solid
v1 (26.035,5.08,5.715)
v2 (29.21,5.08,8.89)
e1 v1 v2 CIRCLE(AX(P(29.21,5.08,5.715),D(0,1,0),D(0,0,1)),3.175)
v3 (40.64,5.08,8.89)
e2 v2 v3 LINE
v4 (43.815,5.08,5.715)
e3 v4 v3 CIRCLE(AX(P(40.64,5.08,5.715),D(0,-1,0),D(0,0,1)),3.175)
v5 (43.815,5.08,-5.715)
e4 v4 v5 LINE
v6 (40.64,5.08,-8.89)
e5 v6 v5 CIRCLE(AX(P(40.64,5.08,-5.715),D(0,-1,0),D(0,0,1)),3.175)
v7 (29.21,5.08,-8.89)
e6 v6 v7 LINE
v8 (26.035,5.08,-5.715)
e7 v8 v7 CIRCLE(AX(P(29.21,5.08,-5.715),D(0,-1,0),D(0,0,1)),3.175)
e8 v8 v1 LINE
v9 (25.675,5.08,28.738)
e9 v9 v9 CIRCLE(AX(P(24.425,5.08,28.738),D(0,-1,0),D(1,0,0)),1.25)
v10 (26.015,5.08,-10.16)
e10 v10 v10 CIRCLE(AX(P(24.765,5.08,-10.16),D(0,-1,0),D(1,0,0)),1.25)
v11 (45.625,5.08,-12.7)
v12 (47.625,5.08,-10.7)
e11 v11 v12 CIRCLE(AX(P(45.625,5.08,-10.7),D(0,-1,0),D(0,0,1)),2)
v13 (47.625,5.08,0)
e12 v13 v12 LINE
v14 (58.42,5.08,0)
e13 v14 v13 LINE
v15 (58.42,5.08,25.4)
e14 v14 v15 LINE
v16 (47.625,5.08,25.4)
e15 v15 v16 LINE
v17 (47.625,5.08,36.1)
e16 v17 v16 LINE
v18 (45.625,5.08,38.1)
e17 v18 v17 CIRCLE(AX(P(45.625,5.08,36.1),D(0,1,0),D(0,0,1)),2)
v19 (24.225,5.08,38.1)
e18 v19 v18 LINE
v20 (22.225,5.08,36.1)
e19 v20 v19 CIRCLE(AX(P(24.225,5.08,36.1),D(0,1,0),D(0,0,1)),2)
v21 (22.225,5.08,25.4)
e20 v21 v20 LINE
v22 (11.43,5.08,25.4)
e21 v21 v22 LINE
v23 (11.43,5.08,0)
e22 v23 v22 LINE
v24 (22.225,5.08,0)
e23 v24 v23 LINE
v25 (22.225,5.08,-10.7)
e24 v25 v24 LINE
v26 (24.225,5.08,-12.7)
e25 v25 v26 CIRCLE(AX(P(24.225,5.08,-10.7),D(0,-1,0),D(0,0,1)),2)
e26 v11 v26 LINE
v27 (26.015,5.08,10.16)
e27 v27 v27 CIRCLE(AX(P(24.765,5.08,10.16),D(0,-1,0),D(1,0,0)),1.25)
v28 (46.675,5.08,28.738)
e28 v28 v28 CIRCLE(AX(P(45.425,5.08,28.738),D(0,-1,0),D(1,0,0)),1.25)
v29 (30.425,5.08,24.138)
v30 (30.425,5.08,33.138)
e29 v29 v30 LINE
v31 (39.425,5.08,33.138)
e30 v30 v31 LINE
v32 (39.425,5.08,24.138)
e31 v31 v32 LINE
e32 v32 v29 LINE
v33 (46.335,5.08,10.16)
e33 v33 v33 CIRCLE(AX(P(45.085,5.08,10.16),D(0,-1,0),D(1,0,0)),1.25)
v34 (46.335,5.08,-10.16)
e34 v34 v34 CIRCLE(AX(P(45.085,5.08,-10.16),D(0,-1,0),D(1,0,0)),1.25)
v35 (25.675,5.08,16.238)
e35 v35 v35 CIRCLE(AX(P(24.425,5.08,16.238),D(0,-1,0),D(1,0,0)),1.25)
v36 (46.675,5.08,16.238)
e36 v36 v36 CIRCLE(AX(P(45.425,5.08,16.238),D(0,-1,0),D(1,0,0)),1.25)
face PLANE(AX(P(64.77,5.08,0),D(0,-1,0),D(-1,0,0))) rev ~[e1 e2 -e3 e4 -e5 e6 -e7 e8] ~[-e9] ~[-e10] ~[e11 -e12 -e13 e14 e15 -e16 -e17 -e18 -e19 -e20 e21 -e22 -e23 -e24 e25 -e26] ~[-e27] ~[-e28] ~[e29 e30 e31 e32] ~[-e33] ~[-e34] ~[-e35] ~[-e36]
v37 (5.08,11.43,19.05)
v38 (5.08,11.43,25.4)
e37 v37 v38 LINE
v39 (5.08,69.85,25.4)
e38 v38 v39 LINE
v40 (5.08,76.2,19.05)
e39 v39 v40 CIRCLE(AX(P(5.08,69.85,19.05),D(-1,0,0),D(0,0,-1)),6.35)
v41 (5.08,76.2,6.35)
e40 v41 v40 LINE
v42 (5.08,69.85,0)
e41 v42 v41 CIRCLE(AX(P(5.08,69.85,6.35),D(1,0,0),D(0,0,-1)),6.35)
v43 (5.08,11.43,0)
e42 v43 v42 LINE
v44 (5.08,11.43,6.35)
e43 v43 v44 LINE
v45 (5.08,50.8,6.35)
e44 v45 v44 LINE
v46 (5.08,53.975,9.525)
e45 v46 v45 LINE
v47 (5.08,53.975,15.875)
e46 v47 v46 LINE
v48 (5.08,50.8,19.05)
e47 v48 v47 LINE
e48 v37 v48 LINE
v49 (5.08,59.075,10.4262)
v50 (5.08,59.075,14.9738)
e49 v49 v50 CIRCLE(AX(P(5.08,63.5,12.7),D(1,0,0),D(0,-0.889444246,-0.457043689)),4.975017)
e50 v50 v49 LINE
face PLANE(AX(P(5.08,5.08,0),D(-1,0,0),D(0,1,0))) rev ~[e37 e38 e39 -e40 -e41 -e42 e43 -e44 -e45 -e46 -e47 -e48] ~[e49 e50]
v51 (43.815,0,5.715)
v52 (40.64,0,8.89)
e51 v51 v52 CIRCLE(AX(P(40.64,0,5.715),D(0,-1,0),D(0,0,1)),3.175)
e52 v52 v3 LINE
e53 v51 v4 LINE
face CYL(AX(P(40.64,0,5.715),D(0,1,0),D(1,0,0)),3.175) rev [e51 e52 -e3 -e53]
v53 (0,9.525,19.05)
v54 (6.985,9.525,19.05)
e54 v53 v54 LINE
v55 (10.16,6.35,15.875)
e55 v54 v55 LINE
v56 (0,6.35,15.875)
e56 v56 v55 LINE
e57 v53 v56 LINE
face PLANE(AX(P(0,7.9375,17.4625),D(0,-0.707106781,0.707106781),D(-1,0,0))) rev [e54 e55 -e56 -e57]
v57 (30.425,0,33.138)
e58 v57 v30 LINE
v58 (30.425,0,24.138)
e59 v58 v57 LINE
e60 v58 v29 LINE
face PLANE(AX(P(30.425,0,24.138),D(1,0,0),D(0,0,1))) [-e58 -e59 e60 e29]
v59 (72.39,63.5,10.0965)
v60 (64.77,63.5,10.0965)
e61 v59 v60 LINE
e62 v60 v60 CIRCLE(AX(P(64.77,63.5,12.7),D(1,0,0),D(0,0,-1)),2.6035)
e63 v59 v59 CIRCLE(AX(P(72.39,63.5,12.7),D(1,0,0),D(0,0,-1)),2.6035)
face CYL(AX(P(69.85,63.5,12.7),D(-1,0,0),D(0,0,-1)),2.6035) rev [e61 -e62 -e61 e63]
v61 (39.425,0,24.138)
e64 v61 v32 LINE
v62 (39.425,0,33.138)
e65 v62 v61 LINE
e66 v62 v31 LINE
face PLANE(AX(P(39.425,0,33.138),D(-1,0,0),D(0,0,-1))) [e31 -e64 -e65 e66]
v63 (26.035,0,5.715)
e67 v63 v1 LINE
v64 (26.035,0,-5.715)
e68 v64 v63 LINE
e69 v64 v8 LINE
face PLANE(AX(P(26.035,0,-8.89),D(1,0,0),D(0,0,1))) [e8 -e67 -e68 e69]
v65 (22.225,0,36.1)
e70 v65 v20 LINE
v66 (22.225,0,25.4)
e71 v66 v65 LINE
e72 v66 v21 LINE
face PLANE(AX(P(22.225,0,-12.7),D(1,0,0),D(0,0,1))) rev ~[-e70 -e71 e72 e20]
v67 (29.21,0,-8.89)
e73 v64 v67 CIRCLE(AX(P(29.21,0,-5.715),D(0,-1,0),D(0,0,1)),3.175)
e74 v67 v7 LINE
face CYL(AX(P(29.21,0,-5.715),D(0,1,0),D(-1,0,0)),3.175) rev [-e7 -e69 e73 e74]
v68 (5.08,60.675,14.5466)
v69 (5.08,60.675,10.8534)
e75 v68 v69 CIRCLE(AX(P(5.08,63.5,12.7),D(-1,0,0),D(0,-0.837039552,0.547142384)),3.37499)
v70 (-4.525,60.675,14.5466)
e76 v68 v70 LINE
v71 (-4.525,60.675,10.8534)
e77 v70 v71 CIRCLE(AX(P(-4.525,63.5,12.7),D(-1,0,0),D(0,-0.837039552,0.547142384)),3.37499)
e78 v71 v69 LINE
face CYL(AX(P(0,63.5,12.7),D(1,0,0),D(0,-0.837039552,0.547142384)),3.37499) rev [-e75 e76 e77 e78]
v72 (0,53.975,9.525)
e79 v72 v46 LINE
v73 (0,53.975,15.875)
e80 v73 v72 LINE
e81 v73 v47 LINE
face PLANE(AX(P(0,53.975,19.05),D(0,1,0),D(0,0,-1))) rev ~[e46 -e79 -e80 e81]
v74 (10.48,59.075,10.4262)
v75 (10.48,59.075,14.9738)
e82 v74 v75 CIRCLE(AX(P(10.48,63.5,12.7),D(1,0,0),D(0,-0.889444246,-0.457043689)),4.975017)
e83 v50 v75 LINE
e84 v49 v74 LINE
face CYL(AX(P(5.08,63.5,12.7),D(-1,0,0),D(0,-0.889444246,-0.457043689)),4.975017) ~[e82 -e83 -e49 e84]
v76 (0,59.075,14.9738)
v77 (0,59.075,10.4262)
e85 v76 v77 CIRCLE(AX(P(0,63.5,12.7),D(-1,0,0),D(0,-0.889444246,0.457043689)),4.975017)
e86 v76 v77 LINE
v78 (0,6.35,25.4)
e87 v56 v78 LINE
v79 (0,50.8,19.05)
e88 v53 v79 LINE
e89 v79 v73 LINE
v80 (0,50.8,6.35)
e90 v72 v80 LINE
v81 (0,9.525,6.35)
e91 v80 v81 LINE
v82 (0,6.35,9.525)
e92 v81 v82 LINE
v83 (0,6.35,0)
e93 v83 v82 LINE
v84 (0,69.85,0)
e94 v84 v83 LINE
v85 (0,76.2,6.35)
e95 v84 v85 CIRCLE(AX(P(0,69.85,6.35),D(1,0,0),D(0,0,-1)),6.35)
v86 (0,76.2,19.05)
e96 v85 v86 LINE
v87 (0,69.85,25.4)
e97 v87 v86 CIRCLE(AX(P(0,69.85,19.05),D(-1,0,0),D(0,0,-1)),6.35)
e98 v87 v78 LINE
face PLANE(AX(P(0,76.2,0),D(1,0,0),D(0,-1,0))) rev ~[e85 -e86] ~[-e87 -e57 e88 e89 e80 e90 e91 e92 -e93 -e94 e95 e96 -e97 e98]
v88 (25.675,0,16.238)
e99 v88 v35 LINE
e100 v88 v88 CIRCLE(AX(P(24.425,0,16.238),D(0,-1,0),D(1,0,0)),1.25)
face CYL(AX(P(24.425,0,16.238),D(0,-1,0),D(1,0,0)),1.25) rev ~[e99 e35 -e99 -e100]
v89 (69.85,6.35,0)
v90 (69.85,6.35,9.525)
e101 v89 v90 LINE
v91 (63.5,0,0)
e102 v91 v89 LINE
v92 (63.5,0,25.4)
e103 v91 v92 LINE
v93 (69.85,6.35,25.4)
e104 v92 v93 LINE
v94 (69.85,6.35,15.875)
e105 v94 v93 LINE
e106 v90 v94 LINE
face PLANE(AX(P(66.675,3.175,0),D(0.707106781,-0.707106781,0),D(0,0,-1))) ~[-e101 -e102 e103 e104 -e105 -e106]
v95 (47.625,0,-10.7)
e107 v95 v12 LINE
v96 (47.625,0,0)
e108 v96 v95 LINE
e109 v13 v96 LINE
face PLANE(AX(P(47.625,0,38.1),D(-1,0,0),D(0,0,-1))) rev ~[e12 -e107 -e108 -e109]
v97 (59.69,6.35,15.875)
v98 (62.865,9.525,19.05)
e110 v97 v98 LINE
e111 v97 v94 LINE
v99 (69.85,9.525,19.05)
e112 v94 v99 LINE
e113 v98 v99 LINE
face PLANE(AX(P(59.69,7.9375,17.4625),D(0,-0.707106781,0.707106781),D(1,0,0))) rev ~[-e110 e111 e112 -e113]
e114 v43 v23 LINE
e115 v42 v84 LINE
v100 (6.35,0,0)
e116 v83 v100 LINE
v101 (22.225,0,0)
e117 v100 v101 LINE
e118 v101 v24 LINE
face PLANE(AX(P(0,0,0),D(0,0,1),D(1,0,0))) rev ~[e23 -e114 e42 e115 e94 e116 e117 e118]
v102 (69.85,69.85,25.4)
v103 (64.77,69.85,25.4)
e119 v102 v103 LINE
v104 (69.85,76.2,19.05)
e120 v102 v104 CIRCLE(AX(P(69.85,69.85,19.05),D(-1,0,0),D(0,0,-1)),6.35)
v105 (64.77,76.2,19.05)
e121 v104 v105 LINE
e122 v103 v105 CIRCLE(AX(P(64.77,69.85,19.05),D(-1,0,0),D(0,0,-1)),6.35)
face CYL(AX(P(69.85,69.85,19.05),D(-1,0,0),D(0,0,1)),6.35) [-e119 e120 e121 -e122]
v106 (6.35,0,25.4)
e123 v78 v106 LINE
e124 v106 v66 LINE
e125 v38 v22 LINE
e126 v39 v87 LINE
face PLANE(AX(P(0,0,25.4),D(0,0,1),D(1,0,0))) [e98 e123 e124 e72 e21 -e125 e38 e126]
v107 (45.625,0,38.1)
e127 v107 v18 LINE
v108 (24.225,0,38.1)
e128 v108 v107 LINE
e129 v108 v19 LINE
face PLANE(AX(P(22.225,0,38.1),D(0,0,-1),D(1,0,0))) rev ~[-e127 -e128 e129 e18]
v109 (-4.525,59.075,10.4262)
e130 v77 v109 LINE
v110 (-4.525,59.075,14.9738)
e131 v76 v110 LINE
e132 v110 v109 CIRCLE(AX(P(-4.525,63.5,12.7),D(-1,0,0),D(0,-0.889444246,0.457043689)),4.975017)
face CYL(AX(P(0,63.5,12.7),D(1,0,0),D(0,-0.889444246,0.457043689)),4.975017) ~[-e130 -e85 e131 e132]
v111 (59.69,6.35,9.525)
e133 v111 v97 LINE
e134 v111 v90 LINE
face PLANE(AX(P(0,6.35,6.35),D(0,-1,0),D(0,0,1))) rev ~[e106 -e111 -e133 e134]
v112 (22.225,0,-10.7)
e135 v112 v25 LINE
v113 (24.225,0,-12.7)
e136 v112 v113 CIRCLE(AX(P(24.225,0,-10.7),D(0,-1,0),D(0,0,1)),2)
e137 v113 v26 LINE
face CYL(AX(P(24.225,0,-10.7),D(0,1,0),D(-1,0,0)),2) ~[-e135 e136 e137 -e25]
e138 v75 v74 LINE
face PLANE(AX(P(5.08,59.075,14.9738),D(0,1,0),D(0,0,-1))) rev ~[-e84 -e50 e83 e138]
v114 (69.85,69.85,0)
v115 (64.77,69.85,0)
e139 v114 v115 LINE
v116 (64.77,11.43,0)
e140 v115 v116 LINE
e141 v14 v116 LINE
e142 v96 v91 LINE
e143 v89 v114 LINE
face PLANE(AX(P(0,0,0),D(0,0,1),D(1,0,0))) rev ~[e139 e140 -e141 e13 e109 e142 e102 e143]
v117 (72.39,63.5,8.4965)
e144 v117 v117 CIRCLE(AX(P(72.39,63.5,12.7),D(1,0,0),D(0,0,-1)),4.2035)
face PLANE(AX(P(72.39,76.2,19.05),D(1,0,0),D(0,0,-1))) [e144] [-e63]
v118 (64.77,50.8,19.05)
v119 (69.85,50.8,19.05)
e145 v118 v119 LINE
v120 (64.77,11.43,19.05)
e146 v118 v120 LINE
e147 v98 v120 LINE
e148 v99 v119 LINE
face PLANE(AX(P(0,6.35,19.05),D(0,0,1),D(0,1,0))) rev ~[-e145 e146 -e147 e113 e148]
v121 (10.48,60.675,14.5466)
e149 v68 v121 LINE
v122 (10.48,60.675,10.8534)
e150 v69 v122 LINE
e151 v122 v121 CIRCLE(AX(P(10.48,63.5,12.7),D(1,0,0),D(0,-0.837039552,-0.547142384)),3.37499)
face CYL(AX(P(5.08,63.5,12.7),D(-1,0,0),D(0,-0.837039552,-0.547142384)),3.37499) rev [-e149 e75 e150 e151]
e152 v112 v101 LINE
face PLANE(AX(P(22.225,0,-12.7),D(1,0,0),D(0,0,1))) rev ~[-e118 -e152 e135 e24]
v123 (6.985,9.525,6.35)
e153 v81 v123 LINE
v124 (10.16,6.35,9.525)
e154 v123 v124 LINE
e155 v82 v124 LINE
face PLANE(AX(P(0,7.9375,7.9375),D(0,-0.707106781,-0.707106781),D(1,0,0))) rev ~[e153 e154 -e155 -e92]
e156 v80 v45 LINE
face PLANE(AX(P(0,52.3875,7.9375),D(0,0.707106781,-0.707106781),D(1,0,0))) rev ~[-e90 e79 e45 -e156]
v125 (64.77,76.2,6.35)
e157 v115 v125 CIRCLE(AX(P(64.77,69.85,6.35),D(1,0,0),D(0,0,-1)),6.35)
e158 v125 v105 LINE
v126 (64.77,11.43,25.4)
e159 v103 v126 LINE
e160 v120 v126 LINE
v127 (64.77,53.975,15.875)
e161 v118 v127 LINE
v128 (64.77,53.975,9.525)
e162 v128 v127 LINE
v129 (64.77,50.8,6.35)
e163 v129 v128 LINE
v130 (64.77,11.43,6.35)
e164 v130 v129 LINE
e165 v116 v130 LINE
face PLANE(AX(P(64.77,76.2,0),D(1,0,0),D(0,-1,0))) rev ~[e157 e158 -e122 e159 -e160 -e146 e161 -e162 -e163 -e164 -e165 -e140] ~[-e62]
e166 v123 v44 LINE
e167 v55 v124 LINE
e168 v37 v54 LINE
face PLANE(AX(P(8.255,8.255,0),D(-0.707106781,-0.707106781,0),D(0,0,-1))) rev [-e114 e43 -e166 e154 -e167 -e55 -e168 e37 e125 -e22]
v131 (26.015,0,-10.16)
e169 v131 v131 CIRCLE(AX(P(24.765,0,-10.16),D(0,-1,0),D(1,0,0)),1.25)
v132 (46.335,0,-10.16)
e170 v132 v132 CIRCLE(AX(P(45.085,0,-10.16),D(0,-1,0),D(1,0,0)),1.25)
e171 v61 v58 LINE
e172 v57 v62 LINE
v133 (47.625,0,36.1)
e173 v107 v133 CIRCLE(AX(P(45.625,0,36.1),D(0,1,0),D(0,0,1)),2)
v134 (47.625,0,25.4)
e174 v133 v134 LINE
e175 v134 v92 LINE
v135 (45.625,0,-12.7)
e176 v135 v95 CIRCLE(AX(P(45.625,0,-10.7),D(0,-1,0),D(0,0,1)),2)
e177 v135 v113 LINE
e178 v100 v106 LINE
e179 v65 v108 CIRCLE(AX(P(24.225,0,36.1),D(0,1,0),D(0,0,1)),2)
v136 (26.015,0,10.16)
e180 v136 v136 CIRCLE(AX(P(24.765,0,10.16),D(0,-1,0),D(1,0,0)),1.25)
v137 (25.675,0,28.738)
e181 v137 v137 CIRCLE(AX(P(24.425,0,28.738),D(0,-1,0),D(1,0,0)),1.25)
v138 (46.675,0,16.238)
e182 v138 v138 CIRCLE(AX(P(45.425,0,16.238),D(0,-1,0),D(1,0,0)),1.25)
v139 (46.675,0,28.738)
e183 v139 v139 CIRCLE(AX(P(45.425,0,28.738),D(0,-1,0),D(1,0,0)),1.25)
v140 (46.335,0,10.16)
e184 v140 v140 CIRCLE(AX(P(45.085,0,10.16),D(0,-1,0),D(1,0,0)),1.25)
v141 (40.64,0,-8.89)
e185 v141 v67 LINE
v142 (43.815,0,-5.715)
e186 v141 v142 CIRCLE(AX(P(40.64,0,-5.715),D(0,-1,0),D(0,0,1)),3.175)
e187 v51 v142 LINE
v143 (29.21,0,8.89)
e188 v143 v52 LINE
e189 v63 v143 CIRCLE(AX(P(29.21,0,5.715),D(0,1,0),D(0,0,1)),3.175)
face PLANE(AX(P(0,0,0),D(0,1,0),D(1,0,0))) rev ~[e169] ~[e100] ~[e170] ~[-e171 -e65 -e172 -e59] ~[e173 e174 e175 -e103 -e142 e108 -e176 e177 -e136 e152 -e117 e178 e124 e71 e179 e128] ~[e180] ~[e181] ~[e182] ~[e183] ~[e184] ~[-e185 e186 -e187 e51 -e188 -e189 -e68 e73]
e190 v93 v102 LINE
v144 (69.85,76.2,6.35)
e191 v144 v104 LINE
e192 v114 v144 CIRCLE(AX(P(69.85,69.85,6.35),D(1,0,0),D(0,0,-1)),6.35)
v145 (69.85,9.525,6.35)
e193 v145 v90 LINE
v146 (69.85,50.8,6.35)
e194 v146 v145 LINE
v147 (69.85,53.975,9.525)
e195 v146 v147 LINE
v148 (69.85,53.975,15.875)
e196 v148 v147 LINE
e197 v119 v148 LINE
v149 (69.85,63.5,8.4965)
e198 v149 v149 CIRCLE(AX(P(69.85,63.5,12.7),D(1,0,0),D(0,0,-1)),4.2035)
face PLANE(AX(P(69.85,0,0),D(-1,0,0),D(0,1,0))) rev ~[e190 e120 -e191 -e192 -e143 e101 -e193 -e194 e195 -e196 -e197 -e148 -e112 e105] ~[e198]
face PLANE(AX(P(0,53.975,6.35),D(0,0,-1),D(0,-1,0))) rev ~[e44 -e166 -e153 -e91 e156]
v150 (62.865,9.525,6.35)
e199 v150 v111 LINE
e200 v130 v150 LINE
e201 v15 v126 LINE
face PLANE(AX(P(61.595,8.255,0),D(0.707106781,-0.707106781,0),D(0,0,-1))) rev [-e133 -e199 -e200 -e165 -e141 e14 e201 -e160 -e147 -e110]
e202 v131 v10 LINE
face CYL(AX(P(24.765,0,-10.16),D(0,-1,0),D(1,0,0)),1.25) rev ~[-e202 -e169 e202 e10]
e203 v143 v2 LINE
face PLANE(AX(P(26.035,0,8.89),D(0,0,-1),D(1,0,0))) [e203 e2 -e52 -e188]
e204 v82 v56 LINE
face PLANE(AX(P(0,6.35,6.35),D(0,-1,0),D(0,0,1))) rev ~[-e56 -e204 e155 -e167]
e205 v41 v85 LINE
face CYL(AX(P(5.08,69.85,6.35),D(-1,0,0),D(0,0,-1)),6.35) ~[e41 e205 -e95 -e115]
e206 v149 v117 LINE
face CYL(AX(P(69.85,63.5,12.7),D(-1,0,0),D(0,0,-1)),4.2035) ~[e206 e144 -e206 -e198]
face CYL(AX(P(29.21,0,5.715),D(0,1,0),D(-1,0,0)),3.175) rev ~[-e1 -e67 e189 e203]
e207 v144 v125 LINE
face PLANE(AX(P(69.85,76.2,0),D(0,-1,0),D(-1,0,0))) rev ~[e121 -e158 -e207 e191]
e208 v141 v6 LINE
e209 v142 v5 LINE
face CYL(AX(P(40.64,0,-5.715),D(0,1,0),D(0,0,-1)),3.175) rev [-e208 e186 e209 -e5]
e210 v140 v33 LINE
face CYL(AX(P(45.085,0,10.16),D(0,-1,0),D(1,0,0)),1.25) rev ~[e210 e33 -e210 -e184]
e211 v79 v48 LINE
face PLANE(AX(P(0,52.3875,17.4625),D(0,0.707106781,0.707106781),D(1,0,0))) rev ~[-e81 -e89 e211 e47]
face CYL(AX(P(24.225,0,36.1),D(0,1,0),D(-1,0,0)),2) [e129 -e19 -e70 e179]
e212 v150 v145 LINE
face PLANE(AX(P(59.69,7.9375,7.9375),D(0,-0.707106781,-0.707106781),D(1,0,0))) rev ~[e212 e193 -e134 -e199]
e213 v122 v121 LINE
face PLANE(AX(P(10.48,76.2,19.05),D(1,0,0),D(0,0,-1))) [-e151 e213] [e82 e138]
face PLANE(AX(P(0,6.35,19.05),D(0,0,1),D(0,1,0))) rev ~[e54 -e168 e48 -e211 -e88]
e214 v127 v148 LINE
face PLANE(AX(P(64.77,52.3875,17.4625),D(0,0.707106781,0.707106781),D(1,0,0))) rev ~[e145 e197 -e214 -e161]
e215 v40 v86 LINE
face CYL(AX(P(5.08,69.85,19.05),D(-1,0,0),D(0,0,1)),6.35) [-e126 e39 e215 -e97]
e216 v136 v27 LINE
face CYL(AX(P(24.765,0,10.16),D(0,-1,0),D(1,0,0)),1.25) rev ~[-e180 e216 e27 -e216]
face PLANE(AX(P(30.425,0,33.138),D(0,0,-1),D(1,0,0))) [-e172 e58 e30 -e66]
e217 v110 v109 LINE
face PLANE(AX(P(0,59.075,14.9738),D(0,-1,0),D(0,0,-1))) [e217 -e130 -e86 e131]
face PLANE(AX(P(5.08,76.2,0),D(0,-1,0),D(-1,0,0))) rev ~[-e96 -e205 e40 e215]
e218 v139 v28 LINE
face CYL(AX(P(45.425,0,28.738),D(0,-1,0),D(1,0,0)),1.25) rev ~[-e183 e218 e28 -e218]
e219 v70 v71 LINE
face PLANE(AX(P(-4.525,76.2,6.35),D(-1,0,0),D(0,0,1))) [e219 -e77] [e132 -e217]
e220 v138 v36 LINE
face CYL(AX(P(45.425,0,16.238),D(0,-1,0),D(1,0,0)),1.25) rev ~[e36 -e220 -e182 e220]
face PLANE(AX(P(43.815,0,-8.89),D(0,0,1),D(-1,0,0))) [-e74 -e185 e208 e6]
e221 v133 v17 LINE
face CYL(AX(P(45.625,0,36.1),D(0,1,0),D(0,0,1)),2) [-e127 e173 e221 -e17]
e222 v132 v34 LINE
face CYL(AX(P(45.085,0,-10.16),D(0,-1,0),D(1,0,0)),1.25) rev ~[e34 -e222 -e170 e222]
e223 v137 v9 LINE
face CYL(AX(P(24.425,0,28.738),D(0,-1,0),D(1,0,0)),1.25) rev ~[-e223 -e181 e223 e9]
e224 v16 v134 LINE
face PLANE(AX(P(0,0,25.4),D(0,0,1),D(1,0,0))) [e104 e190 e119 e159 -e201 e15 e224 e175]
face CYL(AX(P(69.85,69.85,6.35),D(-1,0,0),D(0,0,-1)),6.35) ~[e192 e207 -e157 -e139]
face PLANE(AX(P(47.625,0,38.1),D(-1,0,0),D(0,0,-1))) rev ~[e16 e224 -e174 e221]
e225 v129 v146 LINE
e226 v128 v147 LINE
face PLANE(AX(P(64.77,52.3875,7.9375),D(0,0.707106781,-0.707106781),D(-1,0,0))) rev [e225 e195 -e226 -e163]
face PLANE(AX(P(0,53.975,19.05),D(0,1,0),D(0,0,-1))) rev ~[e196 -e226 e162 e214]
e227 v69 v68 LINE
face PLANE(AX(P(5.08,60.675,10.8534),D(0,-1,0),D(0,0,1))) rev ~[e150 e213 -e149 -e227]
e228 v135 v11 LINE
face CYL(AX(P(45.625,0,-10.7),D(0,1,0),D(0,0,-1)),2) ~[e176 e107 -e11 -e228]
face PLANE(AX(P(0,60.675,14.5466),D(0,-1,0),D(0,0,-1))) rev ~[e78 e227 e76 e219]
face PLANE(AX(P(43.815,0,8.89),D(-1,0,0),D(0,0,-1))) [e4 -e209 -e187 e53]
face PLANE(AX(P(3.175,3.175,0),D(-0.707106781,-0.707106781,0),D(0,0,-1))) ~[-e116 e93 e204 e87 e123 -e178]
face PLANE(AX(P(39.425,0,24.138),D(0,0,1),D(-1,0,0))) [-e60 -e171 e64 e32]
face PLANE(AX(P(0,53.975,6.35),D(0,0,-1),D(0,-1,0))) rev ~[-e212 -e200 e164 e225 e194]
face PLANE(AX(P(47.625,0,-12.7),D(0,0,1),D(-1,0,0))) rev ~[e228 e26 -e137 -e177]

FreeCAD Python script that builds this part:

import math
import FreeCAD as App
import Part
import Sketcher
Q = App.Units.Quantity


def edges_at(feature, points):
    """Names of the edges that pass closest to the given points."""
    edges = feature.Shape.Edges
    near = lambda p: min(range(len(edges)), key=lambda i: edges[i].distToShape(Part.Vertex(*p))[0])
    return sorted({f"Edge{near(p) + 1}" for p in points})

doc = App.newDocument("Part")
body = doc.addObject("PartDesign::Body", "Body")

sketch1 = body.newObject("Sketcher::SketchObject", "Sketch")
sketch1.AttachmentSupport = (doc.getObject("XY_Plane"), [""])
sketch1.MapMode = "FlatFace"
sketch1.addGeometry(Part.LineSegment(App.Vector(0, 76, 0), App.Vector(0, 0, 0)), False)
sketch1.addGeometry(Part.LineSegment(App.Vector(0, 0, 0), App.Vector(70, 0, 0)), False)
sketch1.addGeometry(Part.LineSegment(App.Vector(70, 0, 0), App.Vector(70, 76, 0)), False)
sketch1.addGeometry(Part.LineSegment(App.Vector(70, 76, 0), App.Vector(65, 76, 0)), False)
sketch1.addGeometry(Part.LineSegment(App.Vector(65, 76, 0), App.Vector(65, 5, 0)), False)
sketch1.addGeometry(Part.LineSegment(App.Vector(65, 5, 0), App.Vector(5, 5, 0)), False)
sketch1.addGeometry(Part.LineSegment(App.Vector(5, 5, 0), App.Vector(5, 76, 0)), False)
sketch1.addGeometry(Part.LineSegment(App.Vector(5, 76, 0), App.Vector(0, 76, 0)), False)
sketch1.addConstraint(Sketcher.Constraint("Coincident", 0, 2, 1, 1))
sketch1.addConstraint(Sketcher.Constraint("Coincident", 1, 2, 2, 1))
sketch1.addConstraint(Sketcher.Constraint("Coincident", 2, 2, 3, 1))
sketch1.addConstraint(Sketcher.Constraint("Coincident", 3, 2, 4, 1))
sketch1.addConstraint(Sketcher.Constraint("Coincident", 4, 2, 5, 1))
sketch1.addConstraint(Sketcher.Constraint("Coincident", 5, 2, 6, 1))
sketch1.addConstraint(Sketcher.Constraint("Coincident", 6, 2, 7, 1))
sketch1.addConstraint(Sketcher.Constraint("Coincident", 7, 2, 0, 1))
sketch1.addConstraint(Sketcher.Constraint("Vertical", 0))
sketch1.addConstraint(Sketcher.Constraint("Horizontal", 1))
sketch1.addConstraint(Sketcher.Constraint("Vertical", 2))
sketch1.addConstraint(Sketcher.Constraint("Horizontal", 3))
sketch1.addConstraint(Sketcher.Constraint("Vertical", 4))
sketch1.addConstraint(Sketcher.Constraint("Horizontal", 5))
sketch1.addConstraint(Sketcher.Constraint("Vertical", 6))
sketch1.addConstraint(Sketcher.Constraint("Horizontal", 7))
sketch1.addConstraint(Sketcher.Constraint("Coincident", 0, 2, -1, 1))
sketch1.addConstraint(Sketcher.Constraint("Horizontal", 3, 2, 6, 2))
sketch1.addConstraint(Sketcher.Constraint("Equal", 3, 7))
sketch1.addConstraint(Sketcher.Constraint("DistanceY", 0, 2, 0, 1, Q("3 in")))
sketch1.addConstraint(Sketcher.Constraint("DistanceX", 3, 2, 3, 1, Q("0.2 in")))
sketch1.addConstraint(Sketcher.Constraint("DistanceX", 1, 1, 1, 2, Q("2.75 in")))
sketch1.addConstraint(Sketcher.Constraint("DistanceY", -1, 1, 4, 2, Q("0.2 in")))
pad1 = body.newObject("PartDesign::Pad", "Pad")
pad1.Profile = sketch1
pad1.Length = Q("1 in")

sketch2 = body.newObject("Sketcher::SketchObject", "Sketch001")
sketch2.AttachmentSupport = (doc.getObject("XZ_Plane"), [""])
sketch2.MapMode = "FlatFace"
sketch2.addGeometry(Part.LineSegment(App.Vector(48, 38, 0), App.Vector(22, 38, 0)), False)
sketch2.addGeometry(Part.LineSegment(App.Vector(22, 38, 0), App.Vector(22, -13, 0)), False)
sketch2.addGeometry(Part.LineSegment(App.Vector(22, -13, 0), App.Vector(48, -13, 0)), False)
sketch2.addGeometry(Part.LineSegment(App.Vector(48, -13, 0), App.Vector(48, 38, 0)), False)
sketch2.addConstraint(Sketcher.Constraint("Coincident", 0, 2, 1, 1))
sketch2.addConstraint(Sketcher.Constraint("Coincident", 1, 2, 2, 1))
sketch2.addConstraint(Sketcher.Constraint("Coincident", 2, 2, 3, 1))
sketch2.addConstraint(Sketcher.Constraint("Coincident", 3, 2, 0, 1))
sketch2.addConstraint(Sketcher.Constraint("Horizontal", 0))
sketch2.addConstraint(Sketcher.Constraint("Vertical", 1))
sketch2.addConstraint(Sketcher.Constraint("Horizontal", 2))
sketch2.addConstraint(Sketcher.Constraint("Vertical", 3))
sketch2.addConstraint(Sketcher.Constraint("DistanceX", 0, 2, 0, 1, Q("1 in")))
sketch2.addConstraint(Sketcher.Constraint("DistanceY", 1, 2, 1, 1, Q("2 in")))
sketch2.addConstraint(Sketcher.Constraint("DistanceY", -1, 1, 0, 2, Q("1.5 in")))
sketch2.addConstraint(Sketcher.Constraint("DistanceX", -1, 1, 0, 2, Q("0.875 in")))
pad2 = body.newObject("PartDesign::Pad", "Pad001")
pad2.Profile = sketch2
pad2.Length = Q("0.2 in")
pad2.Reversed = True

sketch3 = body.newObject("Sketcher::SketchObject", "Sketch002")
sketch3.AttachmentSupport = (doc.getObject("XZ_Plane"), [""])
sketch3.MapMode = "FlatFace"
sketch3.addGeometry(Part.Circle(App.Vector(24.4, 16.2, 0), App.Vector(0, 0, 1), 1.2), False)
sketch3.addGeometry(Part.Circle(App.Vector(45.4, 16.2, 0), App.Vector(0, 0, 1), 1.2), False)
sketch3.addGeometry(Part.Circle(App.Vector(24.4, 28.7, 0), App.Vector(0, 0, 1), 1.2), False)
sketch3.addGeometry(Part.Circle(App.Vector(45.4, 28.7, 0), App.Vector(0, 0, 1), 1.2), False)
sketch3.addGeometry(Part.LineSegment(App.Vector(39.4, 33.1, 0), App.Vector(30.4, 33.1, 0)), False)
sketch3.addGeometry(Part.LineSegment(App.Vector(30.4, 33.1, 0), App.Vector(30.4, 24.1, 0)), False)
sketch3.addGeometry(Part.LineSegment(App.Vector(30.4, 24.1, 0), App.Vector(39.4, 24.1, 0)), False)
sketch3.addGeometry(Part.LineSegment(App.Vector(39.4, 24.1, 0), App.Vector(39.4, 33.1, 0)), False)
sketch3.addConstraint(Sketcher.Constraint("Coincident", 4, 2, 5, 1))
sketch3.addConstraint(Sketcher.Constraint("Coincident", 5, 2, 6, 1))
sketch3.addConstraint(Sketcher.Constraint("Coincident", 6, 2, 7, 1))
sketch3.addConstraint(Sketcher.Constraint("Coincident", 7, 2, 4, 1))
sketch3.addConstraint(Sketcher.Constraint("Horizontal", 4))
sketch3.addConstraint(Sketcher.Constraint("Vertical", 5))
sketch3.addConstraint(Sketcher.Constraint("Horizontal", 6))
sketch3.addConstraint(Sketcher.Constraint("Vertical", 7))
sketch3.addConstraint(Sketcher.Constraint("Equal", 0, 1))
sketch3.addConstraint(Sketcher.Constraint("Equal", 1, 2))
sketch3.addConstraint(Sketcher.Constraint("Equal", 2, 3))
sketch3.addConstraint(Sketcher.Constraint("Horizontal", 0, 3, 1, 3))
sketch3.addConstraint(Sketcher.Constraint("Horizontal", 2, 3, 3, 3))
sketch3.addConstraint(Sketcher.Constraint("Vertical", 0, 3, 2, 3))
sketch3.addConstraint(Sketcher.Constraint("Vertical", 1, 3, 3, 3))
sketch3.addConstraint(Sketcher.Constraint("Equal", 6, 5))
sketch3.addConstraint(Sketcher.Constraint("Diameter", 0, Q("2.5 mm")))
sketch3.addConstraint(Sketcher.Constraint("DistanceX", 4, 2, 4, 1, Q("9 mm")))
sketch3.addConstraint(Sketcher.Constraint("DistanceY", 0, 3, 2, 3, Q("12.5 mm")))
sketch3.addConstraint(Sketcher.Constraint("DistanceY", -1, 1, 0, 3, Q("0.6393 in")))
sketch3.addConstraint(Sketcher.Constraint("DistanceY", 5, 2, 2, 3, Q("0.1811 in")))
sketch3.addConstraint(Sketcher.Constraint("DistanceX", -1, 1, 0, 3, Q("24.425 mm")))
sketch3.addConstraint(Sketcher.Constraint("DistanceX", -1, 1, 1, 3, Q("45.425 mm")))
sketch3.addConstraint(Sketcher.Constraint("DistanceX", -1, 1, 4, 2, Q("30.425 mm")))
pocket1 = body.newObject("PartDesign::Pocket", "Pocket")
pocket1.Profile = sketch3
pocket1.Length = Q("0.2 in")

sketch4 = body.newObject("Sketcher::SketchObject", "Sketch003")
sketch4.AttachmentSupport = (doc.getObject("XZ_Plane"), [""])
sketch4.MapMode = "FlatFace"
sketch4.addGeometry(Part.LineSegment(App.Vector(43.8, 8.9, 0), App.Vector(26, 8.9, 0)), False)
sketch4.addGeometry(Part.LineSegment(App.Vector(26, 8.9, 0), App.Vector(26, -8.9, 0)), False)
sketch4.addGeometry(Part.LineSegment(App.Vector(26, -8.9, 0), App.Vector(43.8, -8.9, 0)), False)
sketch4.addGeometry(Part.LineSegment(App.Vector(43.8, -8.9, 0), App.Vector(43.8, 8.9, 0)), False)
sketch4.addGeometry(Part.Circle(App.Vector(24.8, 10.2, 0), App.Vector(0, 0, 1), 1.2), False)
sketch4.addGeometry(Part.Circle(App.Vector(45.1, 10.2, 0), App.Vector(0, 0, 1), 1.2), False)
sketch4.addGeometry(Part.Circle(App.Vector(45.1, -10.2, 0), App.Vector(0, 0, 1), 1.2), False)
sketch4.addGeometry(Part.Circle(App.Vector(24.8, -10.2, 0), App.Vector(0, 0, 1), 1.2), False)
sketch4.addConstraint(Sketcher.Constraint("Coincident", 0, 2, 1, 1))
sketch4.addConstraint(Sketcher.Constraint("Coincident", 1, 2, 2, 1))
sketch4.addConstraint(Sketcher.Constraint("Coincident", 2, 2, 3, 1))
sketch4.addConstraint(Sketcher.Constraint("Coincident", 3, 2, 0, 1))
sketch4.addConstraint(Sketcher.Constraint("Horizontal", 0))
sketch4.addConstraint(Sketcher.Constraint("Vertical", 1))
sketch4.addConstraint(Sketcher.Constraint("Horizontal", 2))
sketch4.addConstraint(Sketcher.Constraint("Vertical", 3))
sketch4.addConstraint(Sketcher.Constraint("Equal", 4, 5))
sketch4.addConstraint(Sketcher.Constraint("Equal", 5, 6))
sketch4.addConstraint(Sketcher.Constraint("Equal", 6, 7))
sketch4.addConstraint(Sketcher.Constraint("Symmetric", 5, 3, 6, 3, -1))
sketch4.addConstraint(Sketcher.Constraint("Symmetric", 4, 3, 7, 3, -1))
sketch4.addConstraint(Sketcher.Constraint("Horizontal", 4, 3, 5, 3))
sketch4.addConstraint(Sketcher.Constraint("Equal", 2, 1))
sketch4.addConstraint(Sketcher.Constraint("DistanceX", 0, 2, 0, 1, Q("0.7 in")))
sketch4.addConstraint(Sketcher.Constraint("DistanceX", 4, 3, 5, 3, Q("0.8 in")))
sketch4.addConstraint(Sketcher.Constraint("DistanceY", 6, 3, 5, 3, Q("0.8 in")))
sketch4.addConstraint(Sketcher.Constraint("Diameter", 4, Q("2.5 mm")))
sketch4.addConstraint(Sketcher.Constraint("DistanceY", -1, 1, 0, 2, Q("0.35 in")))
sketch4.addConstraint(Sketcher.Constraint("DistanceX", 4, 3, 0, 2, Q("0.05 in")))
sketch4.addConstraint(Sketcher.Constraint("DistanceX", -1, 1, 4, 3, Q("0.975 in")))
pocket2 = body.newObject("PartDesign::Pocket", "Pocket001")
pocket2.Profile = sketch4
pocket2.Length = Q("0.2 in")

sketch5 = body.newObject("Sketcher::SketchObject", "Sketch004")
sketch5.AttachmentSupport = (doc.getObject("YZ_Plane"), [""])
sketch5.MapMode = "FlatFace"
sketch5.addGeometry(Part.ArcOfCircle(Part.Circle(App.Vector(63.5, 12.7, 0), App.Vector(0, 0, 1), 3.4), math.radians(-147), math.radians(147)), False)
sketch5.addGeometry(Part.LineSegment(App.Vector(60.7, 10.9, 0), App.Vector(60.7, 14.5, 0)), False)
sketch5.addConstraint(Sketcher.Constraint("Coincident", 0, 1, 1, 1))
sketch5.addConstraint(Sketcher.Constraint("Coincident", 1, 2, 0, 2))
sketch5.addConstraint(Sketcher.Constraint("Vertical", 1))
sketch5.addConstraint(Sketcher.Constraint("DistanceX", -1, 1, 0, 3, Q("2.5 in")))
sketch5.addConstraint(Sketcher.Constraint("DistanceY", -1, 1, 0, 3, Q("0.5 in")))
sketch5.addConstraint(Sketcher.Constraint("Radius", 0, Q("3.375 mm")))
sketch5.addConstraint(Sketcher.Constraint("DistanceY", 1, 1, 1, 2, Q("0.1454 in")))
pocket3 = body.newObject("PartDesign::Pocket", "Pocket002")
pocket3.Profile = sketch5
pocket3.Length = Q("0.2 in")
pocket3.Reversed = True

sketch6 = body.newObject("Sketcher::SketchObject", "Sketch005")
sketch6.AttachmentSupport = (doc.getObject("YZ_Plane"), [""])
sketch6.MapMode = "FlatFace"
sketch6.AttachmentOffset = App.Placement(App.Vector(0, 0, 2.75 * 25.4), App.Rotation())
sketch6.addGeometry(Part.Circle(App.Vector(63.5, 12.7, 0), App.Vector(0, 0, 1), 2.6), False)
sketch6.addConstraint(Sketcher.Constraint("Diameter", 0, Q("0.205 in")))
sketch6.addConstraint(Sketcher.Constraint("DistanceX", -1, 1, 0, 3, Q("2.5 in")))
sketch6.addConstraint(Sketcher.Constraint("DistanceY", -1, 1, 0, 3, Q("0.5 in")))
pocket4 = body.newObject("PartDesign::Pocket", "Pocket003")
pocket4.Profile = sketch6
pocket4.Length = Q("0.2 in")
doc.recompute()

fillet = body.newObject("PartDesign::Fillet", "Fillet")
fillet.Base = (pocket4, edges_at(pocket4, [
    (47.625, 2.54, 38.1),
    (22.225, 2.54, 38.1),
    (22.225, 2.54, -12.7),
    (47.625, 2.54, -12.7),
]))
fillet.Radius = 2
doc.recompute()

fillet2 = body.newObject("PartDesign::Fillet", "Fillet001")
fillet2.Base = (fillet, edges_at(fillet, [
    (67.31, 76.2, 25.4),
    (67.31, 76.2, 0),
    (2.54, 76.2, 25.4),
    (2.54, 76.2, 0),
]))
fillet2.Radius = Q("0.25 in")
doc.recompute()

chamfer = body.newObject("PartDesign::Chamfer", "Chamfer")
chamfer.Base = (fillet2, edges_at(fillet2, [
    (0, 0, 12.7),
    (5.08, 5.08, 12.7),
    (69.85, 0, 12.7),
    (64.77, 5.08, 12.7),
]))
chamfer.Size = Q("0.25 in")

sketch7 = body.newObject("Sketcher::SketchObject", "Sketch006")
sketch7.AttachmentSupport = (doc.getObject("YZ_Plane"), [""])
sketch7.MapMode = "FlatFace"
sketch7.addGeometry(Part.LineSegment(App.Vector(6, 19, 0), App.Vector(54, 19, 0)), False)
sketch7.addGeometry(Part.LineSegment(App.Vector(54, 19, 0), App.Vector(54, 6, 0)), False)
sketch7.addGeometry(Part.LineSegment(App.Vector(54, 6, 0), App.Vector(6, 6, 0)), False)
sketch7.addGeometry(Part.LineSegment(App.Vector(6, 6, 0), App.Vector(6, 19, 0)), False)
sketch7.addConstraint(Sketcher.Constraint("Coincident", 0, 2, 1, 1))
sketch7.addConstraint(Sketcher.Constraint("Coincident", 1, 2, 2, 1))
sketch7.addConstraint(Sketcher.Constraint("Coincident", 2, 2, 3, 1))
sketch7.addConstraint(Sketcher.Constraint("Coincident", 3, 2, 0, 1))
sketch7.addConstraint(Sketcher.Constraint("Horizontal", 0))
sketch7.addConstraint(Sketcher.Constraint("Vertical", 1))
sketch7.addConstraint(Sketcher.Constraint("Horizontal", 2))
sketch7.addConstraint(Sketcher.Constraint("Vertical", 3))
sketch7.addConstraint(Sketcher.Constraint("DistanceY", -1, 1, 1, 2, Q("0.25 in")))
sketch7.addConstraint(Sketcher.Constraint("DistanceX", -1, 1, 2, 2, Q("0.25 in")))
sketch7.addConstraint(Sketcher.Constraint("DistanceY", 1, 2, 1, 1, Q("0.5 in")))
sketch7.addConstraint(Sketcher.Constraint("DistanceX", 0, 1, 0, 2, Q("1.875 in")))
pocket5 = body.newObject("PartDesign::Pocket", "Pocket004")
pocket5.Profile = sketch7
pocket5.Type = "ThroughAll"
pocket5.Reversed = True
doc.recompute()

chamfer2 = body.newObject("PartDesign::Chamfer", "Chamfer001")
chamfer2.Base = (pocket5, edges_at(pocket5, [
    (64.77, 6.35, 19.05),
    (64.77, 6.35, 6.35),
    (67.31, 53.975, 6.35),
    (67.31, 53.975, 19.05),
    (5.08, 6.35, 6.35),
    (5.08, 6.35, 19.05),
    (2.54, 53.975, 19.05),
    (2.54, 53.975, 6.35),
]))
chamfer2.Size = Q("0.125 in")
doc.recompute()

fillet3 = body.newObject("PartDesign::Fillet", "Fillet002")
fillet3.Base = (chamfer2, edges_at(chamfer2, [
    (26.035, 2.54, 8.89),
    (26.035, 2.54, -8.89),
    (43.815, 2.54, -8.89),
    (43.815, 2.54, 8.89),
]))
fillet3.Radius = Q("0.125 in")

sketch8 = body.newObject("Sketcher::SketchObject", "Sketch007")
sketch8.AttachmentSupport = (doc.getObject("YZ_Plane"), [""])
sketch8.MapMode = "FlatFace"
sketch8.addGeometry(Part.LineSegment(App.Vector(59.1, 10.4, 0), App.Vector(59.1, 15, 0)), False)
sketch8.addGeometry(Part.ArcOfCircle(Part.Circle(App.Vector(63.5, 12.7, 0), App.Vector(0, 0, 1), 5), math.radians(-153), math.radians(153)), False)
sketch8.addGeometry(Part.ArcOfCircle(Part.Circle(App.Vector(63.5, 12.7, 0), App.Vector(0, 0, 1), 3.4), math.radians(-147), math.radians(147)), False)
sketch8.addGeometry(Part.LineSegment(App.Vector(60.7, 14.5, 0), App.Vector(60.7, 10.9, 0)), False)
sketch8.addConstraint(Sketcher.Constraint("Coincident", 0, 1, 1, 1))
sketch8.addConstraint(Sketcher.Constraint("Coincident", 1, 2, 0, 2))
sketch8.addConstraint(Sketcher.Constraint("Coincident", 2, 1, 3, 2))
sketch8.addConstraint(Sketcher.Constraint("Coincident", 3, 1, 2, 2))
sketch8.addConstraint(Sketcher.Constraint("Vertical", 0))
sketch8.addConstraint(Sketcher.Constraint("Vertical", 3))
sketch8.addConstraint(Sketcher.Constraint("Coincident", 2, 3, 1, 3))
sketch8.addConstraint(Sketcher.Constraint("DistanceX", 0, 1, 2, 1, Q("0.063 in")))
sketch8.addConstraint(Sketcher.Constraint("DistanceX", -1, 1, 1, 3, Q("2.5 in")))
sketch8.addConstraint(Sketcher.Constraint("DistanceY", -1, 1, 1, 3, Q("0.5 in")))
sketch8.addConstraint(Sketcher.Constraint("Radius", 1, Q("4.975 mm")))
sketch8.addConstraint(Sketcher.Constraint("Radius", 2, Q("3.375 mm")))
sketch8.addConstraint(Sketcher.Constraint("DistanceY", 3, 2, 3, 1, Q("0.1454 in")))
pad3 = body.newObject("PartDesign::Pad", "Pad002")
pad3.Profile = sketch8
pad3.Length = 4.525
pad3.Reversed = True

sketch9 = body.newObject("Sketcher::SketchObject", "Sketch008")
sketch9.AttachmentSupport = (doc.getObject("YZ_Plane"), [""])
sketch9.MapMode = "FlatFace"
sketch9.AttachmentOffset = App.Placement(App.Vector(0, 0, 0.2 * 25.4), App.Rotation())
sketch9.addGeometry(Part.ArcOfCircle(Part.Circle(App.Vector(63.5, 12.7, 0), App.Vector(0, 0, 1), 5), math.radians(-153), math.radians(153)), False)
sketch9.addGeometry(Part.LineSegment(App.Vector(59.1, 15, 0), App.Vector(59.1, 10.4, 0)), False)
sketch9.addGeometry(Part.ArcOfCircle(Part.Circle(App.Vector(63.5, 12.7, 0), App.Vector(0, 0, 1), 3.4), math.radians(-147), math.radians(147)), False)
sketch9.addGeometry(Part.LineSegment(App.Vector(60.7, 10.9, 0), App.Vector(60.7, 14.5, 0)), False)
sketch9.addConstraint(Sketcher.Constraint("Coincident", 0, 1, 1, 2))
sketch9.addConstraint(Sketcher.Constraint("Coincident", 1, 1, 0, 2))
sketch9.addConstraint(Sketcher.Constraint("Coincident", 2, 1, 3, 1))
sketch9.addConstraint(Sketcher.Constraint("Coincident", 3, 2, 2, 2))
sketch9.addConstraint(Sketcher.Constraint("Vertical", 1))
sketch9.addConstraint(Sketcher.Constraint("Vertical", 3))
sketch9.addConstraint(Sketcher.Constraint("Coincident", 2, 3, 0, 3))
sketch9.addConstraint(Sketcher.Constraint("DistanceX", 0, 1, 2, 1, Q("0.063 in")))
sketch9.addConstraint(Sketcher.Constraint("DistanceX", -1, 1, 0, 3, Q("2.5 in")))
sketch9.addConstraint(Sketcher.Constraint("DistanceY", -1, 1, 0, 3, Q("0.5 in")))
sketch9.addConstraint(Sketcher.Constraint("Radius", 0, Q("4.975 mm")))
sketch9.addConstraint(Sketcher.Constraint("Radius", 2, Q("3.375 mm")))
sketch9.addConstraint(Sketcher.Constraint("DistanceY", 3, 1, 3, 2, Q("0.1454 in")))
pad4 = body.newObject("PartDesign::Pad", "Pad003")
pad4.Profile = sketch9
pad4.Length = Q("0.2125984 in")

sketch10 = body.newObject("Sketcher::SketchObject", "Sketch009")
sketch10.AttachmentSupport = (doc.getObject("YZ_Plane"), [""])
sketch10.MapMode = "FlatFace"
sketch10.AttachmentOffset = App.Placement(App.Vector(0, 0, 2.75 * 25.4), App.Rotation())
sketch10.addGeometry(Part.Circle(App.Vector(63.5, 12.7, 0), App.Vector(0, 0, 1), 4.2), False)
sketch10.addGeometry(Part.Circle(App.Vector(63.5, 12.7, 0), App.Vector(0, 0, 1), 2.6), False)
sketch10.addConstraint(Sketcher.Constraint("Coincident", 1, 3, 0, 3))
sketch10.addConstraint(Sketcher.Constraint("Diameter", 1, Q("0.205 in")))
sketch10.addConstraint(Sketcher.Constraint("DistanceX", -1, 1, 0, 3, Q("2.5 in")))
sketch10.addConstraint(Sketcher.Constraint("DistanceY", -1, 1, 0, 3, Q("0.5 in")))
sketch10.addConstraint(Sketcher.Constraint("Diameter", 0, Q("8.407 mm")))
pad5 = body.newObject("PartDesign::Pad", "Pad004")
pad5.Profile = sketch10
pad5.Length = Q("0.1 in")

doc.recompute()
